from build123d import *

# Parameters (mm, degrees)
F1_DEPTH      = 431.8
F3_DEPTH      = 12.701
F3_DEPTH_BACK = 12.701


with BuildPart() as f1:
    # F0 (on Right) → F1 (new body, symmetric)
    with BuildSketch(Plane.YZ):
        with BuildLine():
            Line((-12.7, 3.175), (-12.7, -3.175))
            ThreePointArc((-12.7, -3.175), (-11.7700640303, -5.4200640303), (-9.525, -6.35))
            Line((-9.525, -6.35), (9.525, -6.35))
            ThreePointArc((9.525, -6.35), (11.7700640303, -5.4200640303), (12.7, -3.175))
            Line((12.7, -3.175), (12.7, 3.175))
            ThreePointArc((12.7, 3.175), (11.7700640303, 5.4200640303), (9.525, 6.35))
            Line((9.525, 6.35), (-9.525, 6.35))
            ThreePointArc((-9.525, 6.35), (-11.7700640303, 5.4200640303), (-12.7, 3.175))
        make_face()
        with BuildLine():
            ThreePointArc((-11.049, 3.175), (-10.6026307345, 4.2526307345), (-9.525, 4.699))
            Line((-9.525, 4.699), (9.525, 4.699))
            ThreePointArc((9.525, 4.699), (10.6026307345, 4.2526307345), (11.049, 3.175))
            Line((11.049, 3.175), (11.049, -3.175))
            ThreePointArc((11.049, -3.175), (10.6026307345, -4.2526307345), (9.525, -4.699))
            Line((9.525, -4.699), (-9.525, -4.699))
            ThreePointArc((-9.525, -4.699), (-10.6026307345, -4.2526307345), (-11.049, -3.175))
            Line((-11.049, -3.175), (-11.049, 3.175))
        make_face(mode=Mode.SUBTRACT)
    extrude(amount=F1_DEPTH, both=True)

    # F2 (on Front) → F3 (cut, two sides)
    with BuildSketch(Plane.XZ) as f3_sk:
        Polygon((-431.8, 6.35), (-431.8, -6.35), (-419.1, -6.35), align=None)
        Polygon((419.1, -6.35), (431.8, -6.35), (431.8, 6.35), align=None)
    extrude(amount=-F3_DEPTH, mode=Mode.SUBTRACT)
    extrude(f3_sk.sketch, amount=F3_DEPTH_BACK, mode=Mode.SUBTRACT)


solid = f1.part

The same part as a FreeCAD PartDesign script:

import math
import FreeCAD as App
import Part
import Sketcher
Q = App.Units.Quantity

doc = App.newDocument("Part")
body = doc.addObject("PartDesign::Body", "Body")

sketch1 = doc.addObject("Sketcher::SketchObject", "Sketch")
body.addObject(sketch1)
sketch1.AttachmentSupport = (doc.YZ_Plane, [""])
sketch1.MapMode = "FlatFace"
sketch1.addGeometry([
    Part.LineSegment(App.Vector(-12.7, 3.2, 0), App.Vector(-12.7, -3.2, 0)),
    Part.ArcOfCircle(Part.Circle(App.Vector(-9.5, -3.2, 0), App.Vector(0, 0, 1), 3.2), math.radians(180), math.radians(270)),
    Part.LineSegment(App.Vector(-9.5, -6.3, 0), App.Vector(9.5, -6.3, 0)),
    Part.ArcOfCircle(Part.Circle(App.Vector(9.5, -3.2, 0), App.Vector(0, 0, 1), 3.2), math.radians(-90), math.radians(0)),
    Part.LineSegment(App.Vector(12.7, -3.2, 0), App.Vector(12.7, 3.2, 0)),
    Part.ArcOfCircle(Part.Circle(App.Vector(9.5, 3.2, 0), App.Vector(0, 0, 1), 3.2), math.radians(0), math.radians(90)),
    Part.LineSegment(App.Vector(9.5, 6.3, 0), App.Vector(-9.5, 6.3, 0)),
    Part.ArcOfCircle(Part.Circle(App.Vector(-9.5, 3.2, 0), App.Vector(0, 0, 1), 3.2), math.radians(90), math.radians(180)),
    Part.LineSegment(App.Vector(-11, -3.2, 0), App.Vector(-11, 3.2, 0)),
    Part.ArcOfCircle(Part.Circle(App.Vector(-9.5, 3.2, 0), App.Vector(0, 0, 1), 1.5), math.radians(90), math.radians(180)),
    Part.LineSegment(App.Vector(-9.5, 4.7, 0), App.Vector(9.5, 4.7, 0)),
    Part.ArcOfCircle(Part.Circle(App.Vector(9.5, 3.2, 0), App.Vector(0, 0, 1), 1.5), math.radians(0), math.radians(90)),
    Part.LineSegment(App.Vector(11, 3.2, 0), App.Vector(11, -3.2, 0)),
    Part.ArcOfCircle(Part.Circle(App.Vector(9.5, -3.2, 0), App.Vector(0, 0, 1), 1.5), math.radians(-90), math.radians(0)),
    Part.LineSegment(App.Vector(9.5, -4.7, 0), App.Vector(-9.5, -4.7, 0)),
    Part.ArcOfCircle(Part.Circle(App.Vector(-9.5, -3.2, 0), App.Vector(0, 0, 1), 1.5), math.radians(180), math.radians(270)),
], False)
sketch1.addConstraint([
    Sketcher.Constraint("Tangent", 0, 2, 1, 1),
    Sketcher.Constraint("Tangent", 1, 2, 2, 1),
    Sketcher.Constraint("Tangent", 2, 2, 3, 1),
    Sketcher.Constraint("Tangent", 3, 2, 4, 1),
    Sketcher.Constraint("Tangent", 4, 2, 5, 1),
    Sketcher.Constraint("Tangent", 5, 2, 6, 1),
    Sketcher.Constraint("Tangent", 6, 2, 7, 1),
    Sketcher.Constraint("Tangent", 7, 2, 0, 1),
    Sketcher.Constraint("Tangent", 8, 2, 9, 2),
    Sketcher.Constraint("Tangent", 9, 1, 10, 1),
    Sketcher.Constraint("Tangent", 10, 2, 11, 2),
    Sketcher.Constraint("Tangent", 11, 1, 12, 1),
    Sketcher.Constraint("Tangent", 12, 2, 13, 2),
    Sketcher.Constraint("Tangent", 13, 1, 14, 1),
    Sketcher.Constraint("Tangent", 14, 2, 15, 2),
    Sketcher.Constraint("Tangent", 15, 1, 8, 1),
    Sketcher.Constraint("Vertical", 0),
    Sketcher.Constraint("Horizontal", 2),
    Sketcher.Constraint("Vertical", 4),
    Sketcher.Constraint("Horizontal", 6),
    Sketcher.Constraint("Vertical", 8),
    Sketcher.Constraint("Horizontal", 10),
    Sketcher.Constraint("Vertical", 12),
    Sketcher.Constraint("Horizontal", 14),
    Sketcher.Constraint("Coincident", 9, 3, 7, 3),
    Sketcher.Constraint("Coincident", 11, 3, 5, 3),
    Sketcher.Constraint("Coincident", 13, 3, 3, 3),
    Sketcher.Constraint("Equal", 1, 3),
    Sketcher.Constraint("Equal", 3, 5),
    Sketcher.Constraint("Equal", 5, 7),
    Sketcher.Constraint("Equal", 13, 15),
    Sketcher.Constraint("Symmetric", 1, 3, 5, 3, -1, 1),
    Sketcher.Constraint("Radius", 9, Q("0.06 in")),
    Sketcher.Constraint("Radius", 1, Q("0.125 in")),
    Sketcher.Constraint("DistanceX", 2, 1, 2, 2, Q("0.75 in")),
    Sketcher.Constraint("DistanceY", 0, 2, 0, 1, Q("0.25 in")),
])
pad1 = doc.addObject("PartDesign::Pad", "Pad")
body.addObject(pad1)
pad1.Profile = sketch1
pad1.Length = Q("34 in")
pad1.Midplane = True

sketch2 = doc.addObject("Sketcher::SketchObject", "Sketch001")
body.addObject(sketch2)
sketch2.AttachmentSupport = (doc.XZ_Plane, [""])
sketch2.MapMode = "FlatFace"
sketch2.addGeometry([
    Part.LineSegment(App.Vector(-432, 6, 0), App.Vector(-432, -6, 0)),
    Part.LineSegment(App.Vector(-432, -6, 0), App.Vector(-419, -6, 0)),
    Part.LineSegment(App.Vector(-419, -6, 0), App.Vector(-432, 6, 0)),
    Part.LineSegment(App.Vector(419, -6, 0), App.Vector(432, -6, 0)),
    Part.LineSegment(App.Vector(432, -6, 0), App.Vector(432, 6, 0)),
    Part.LineSegment(App.Vector(432, 6, 0), App.Vector(419, -6, 0)),
], False)
sketch2.addConstraint([
    Sketcher.Constraint("Coincident", 0, 2, 1, 1),
    Sketcher.Constraint("Coincident", 1, 2, 2, 1),
    Sketcher.Constraint("Coincident", 2, 2, 0, 1),
    Sketcher.Constraint("Coincident", 3, 2, 4, 1),
    Sketcher.Constraint("Coincident", 4, 2, 5, 1),
    Sketcher.Constraint("Coincident", 5, 2, 3, 1),
    Sketcher.Constraint("Vertical", 0),
    Sketcher.Constraint("Horizontal", 1),
    Sketcher.Constraint("Horizontal", 3),
    Sketcher.Constraint("Vertical", 4),
    Sketcher.Constraint("Symmetric", 2, 2, 3, 2, -1, 1),
    Sketcher.Constraint("Symmetric", 1, 2, 5, 2, -2),
    Sketcher.Constraint("Perpendicular", 2, 5),
    Sketcher.Constraint("Horizontal", 2, 2, 4, 2),
    Sketcher.Constraint("DistanceX", 1, 1, 1, 2, Q("0.5 in")),
    Sketcher.Constraint("DistanceX", 0, 2, -1, 1, Q("17 in")),
])
pocket1 = doc.addObject("PartDesign::Pocket", "Pocket")
body.addObject(pocket1)
pocket1.Profile = sketch2
pocket1.Type = "ThroughAll"
pocket1.Midplane = True

doc.recompute()
